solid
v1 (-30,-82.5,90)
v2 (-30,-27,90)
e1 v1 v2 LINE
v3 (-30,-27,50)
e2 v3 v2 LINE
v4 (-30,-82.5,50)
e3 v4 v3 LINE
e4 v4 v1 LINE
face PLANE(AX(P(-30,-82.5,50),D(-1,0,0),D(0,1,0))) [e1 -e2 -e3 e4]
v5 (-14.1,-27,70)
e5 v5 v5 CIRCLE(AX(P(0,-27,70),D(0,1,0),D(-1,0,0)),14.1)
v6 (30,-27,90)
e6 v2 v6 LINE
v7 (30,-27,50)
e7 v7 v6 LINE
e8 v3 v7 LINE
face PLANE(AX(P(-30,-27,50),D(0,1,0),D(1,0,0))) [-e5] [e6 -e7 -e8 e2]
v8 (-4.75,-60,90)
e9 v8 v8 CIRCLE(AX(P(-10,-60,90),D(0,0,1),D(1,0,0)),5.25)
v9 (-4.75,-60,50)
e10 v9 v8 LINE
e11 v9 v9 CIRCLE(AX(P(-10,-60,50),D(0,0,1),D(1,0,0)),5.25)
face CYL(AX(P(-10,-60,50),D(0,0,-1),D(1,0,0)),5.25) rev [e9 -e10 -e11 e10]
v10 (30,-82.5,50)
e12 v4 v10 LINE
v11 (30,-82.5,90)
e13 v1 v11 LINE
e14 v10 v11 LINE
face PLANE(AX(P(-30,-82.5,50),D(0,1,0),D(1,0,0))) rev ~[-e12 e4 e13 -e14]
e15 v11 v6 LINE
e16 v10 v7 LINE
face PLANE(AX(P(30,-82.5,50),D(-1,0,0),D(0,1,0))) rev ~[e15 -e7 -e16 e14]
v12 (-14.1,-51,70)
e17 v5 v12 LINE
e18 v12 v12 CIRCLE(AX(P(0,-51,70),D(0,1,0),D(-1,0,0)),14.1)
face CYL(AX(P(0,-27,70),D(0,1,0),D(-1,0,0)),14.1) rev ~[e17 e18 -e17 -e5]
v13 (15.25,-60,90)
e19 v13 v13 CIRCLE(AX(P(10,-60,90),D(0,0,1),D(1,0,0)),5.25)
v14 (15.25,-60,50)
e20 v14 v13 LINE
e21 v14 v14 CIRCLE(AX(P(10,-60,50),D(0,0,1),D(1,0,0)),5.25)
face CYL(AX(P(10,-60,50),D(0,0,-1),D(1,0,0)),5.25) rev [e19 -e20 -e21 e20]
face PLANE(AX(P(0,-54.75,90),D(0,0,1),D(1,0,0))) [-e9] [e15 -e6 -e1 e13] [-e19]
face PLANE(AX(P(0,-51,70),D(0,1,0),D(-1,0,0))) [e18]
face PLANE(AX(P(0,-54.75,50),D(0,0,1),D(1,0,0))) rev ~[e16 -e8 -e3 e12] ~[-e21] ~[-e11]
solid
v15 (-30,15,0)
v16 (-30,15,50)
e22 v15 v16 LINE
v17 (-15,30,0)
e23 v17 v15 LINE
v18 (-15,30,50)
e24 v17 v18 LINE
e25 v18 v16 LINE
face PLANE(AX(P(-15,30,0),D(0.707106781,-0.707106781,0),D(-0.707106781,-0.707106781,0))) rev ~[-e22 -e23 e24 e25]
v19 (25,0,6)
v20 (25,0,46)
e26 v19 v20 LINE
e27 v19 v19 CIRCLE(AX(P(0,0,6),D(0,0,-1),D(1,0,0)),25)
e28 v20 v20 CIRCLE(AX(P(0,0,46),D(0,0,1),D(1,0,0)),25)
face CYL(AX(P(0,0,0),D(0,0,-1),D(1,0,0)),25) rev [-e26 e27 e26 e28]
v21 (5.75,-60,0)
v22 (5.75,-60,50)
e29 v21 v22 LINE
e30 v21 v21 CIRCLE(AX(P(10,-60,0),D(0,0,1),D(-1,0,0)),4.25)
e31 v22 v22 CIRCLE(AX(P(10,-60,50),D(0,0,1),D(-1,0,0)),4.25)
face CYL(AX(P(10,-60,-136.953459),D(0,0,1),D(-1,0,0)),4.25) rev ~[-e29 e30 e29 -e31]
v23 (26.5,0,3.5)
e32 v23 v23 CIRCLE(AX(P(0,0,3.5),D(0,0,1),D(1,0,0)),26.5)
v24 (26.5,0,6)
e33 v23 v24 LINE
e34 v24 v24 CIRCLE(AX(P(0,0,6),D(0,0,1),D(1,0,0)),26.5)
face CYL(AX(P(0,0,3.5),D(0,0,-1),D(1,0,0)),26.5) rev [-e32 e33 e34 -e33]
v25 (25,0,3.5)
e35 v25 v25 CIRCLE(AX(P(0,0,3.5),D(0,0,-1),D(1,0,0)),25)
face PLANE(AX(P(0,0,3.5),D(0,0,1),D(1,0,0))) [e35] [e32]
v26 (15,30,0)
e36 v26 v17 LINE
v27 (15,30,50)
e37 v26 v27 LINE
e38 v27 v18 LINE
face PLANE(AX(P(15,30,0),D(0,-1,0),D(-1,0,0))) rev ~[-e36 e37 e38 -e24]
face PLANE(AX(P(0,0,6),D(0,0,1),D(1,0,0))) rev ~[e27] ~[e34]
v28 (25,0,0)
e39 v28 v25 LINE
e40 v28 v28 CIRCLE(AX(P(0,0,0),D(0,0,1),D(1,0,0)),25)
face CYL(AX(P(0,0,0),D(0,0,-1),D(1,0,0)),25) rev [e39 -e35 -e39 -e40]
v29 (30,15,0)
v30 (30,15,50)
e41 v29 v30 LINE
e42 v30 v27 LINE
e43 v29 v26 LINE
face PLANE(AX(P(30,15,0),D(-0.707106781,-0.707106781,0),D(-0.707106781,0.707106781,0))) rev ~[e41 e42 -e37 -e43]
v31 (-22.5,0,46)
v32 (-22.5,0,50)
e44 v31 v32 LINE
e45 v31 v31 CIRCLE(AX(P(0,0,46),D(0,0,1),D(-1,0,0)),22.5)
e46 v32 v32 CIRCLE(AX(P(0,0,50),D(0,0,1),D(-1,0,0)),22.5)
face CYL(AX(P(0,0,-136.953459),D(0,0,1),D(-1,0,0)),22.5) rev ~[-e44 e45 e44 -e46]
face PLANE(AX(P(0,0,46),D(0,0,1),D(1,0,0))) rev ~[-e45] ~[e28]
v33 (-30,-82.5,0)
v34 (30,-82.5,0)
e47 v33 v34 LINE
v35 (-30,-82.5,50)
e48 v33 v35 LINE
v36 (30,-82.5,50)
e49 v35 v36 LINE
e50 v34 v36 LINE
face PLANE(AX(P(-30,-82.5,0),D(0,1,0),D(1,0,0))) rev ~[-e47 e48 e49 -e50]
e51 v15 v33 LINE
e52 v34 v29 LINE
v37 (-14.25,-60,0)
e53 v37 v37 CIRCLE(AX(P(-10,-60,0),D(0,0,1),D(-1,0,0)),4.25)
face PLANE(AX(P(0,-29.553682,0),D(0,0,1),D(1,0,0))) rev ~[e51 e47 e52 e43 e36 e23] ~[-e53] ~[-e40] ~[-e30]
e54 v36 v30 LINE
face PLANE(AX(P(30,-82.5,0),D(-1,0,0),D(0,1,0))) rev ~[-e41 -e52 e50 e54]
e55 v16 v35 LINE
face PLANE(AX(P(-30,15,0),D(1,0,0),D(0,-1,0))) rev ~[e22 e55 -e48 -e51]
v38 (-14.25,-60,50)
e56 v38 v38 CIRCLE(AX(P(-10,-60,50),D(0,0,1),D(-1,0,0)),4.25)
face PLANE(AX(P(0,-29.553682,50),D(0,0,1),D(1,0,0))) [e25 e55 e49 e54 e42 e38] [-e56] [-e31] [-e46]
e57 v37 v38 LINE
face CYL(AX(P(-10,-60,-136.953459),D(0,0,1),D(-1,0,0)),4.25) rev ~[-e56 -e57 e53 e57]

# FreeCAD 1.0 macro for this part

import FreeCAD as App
import Part
import Sketcher
from FreeCAD import Vector
Q = App.Units.Quantity


def add_polygon(sketch, points):
    """Adds a closed chain of lines whose ends are joined by coincident constraints."""
    first, n = sketch.GeometryCount, len(points)
    for a, b in zip(points, points[1:] + points[:1]):
        sketch.addGeometry(Part.LineSegment(App.Vector(*a, 0), App.Vector(*b, 0)), False)
    for i in range(n):
        sketch.addConstraint(Sketcher.Constraint("Coincident", first + i, 2, first + (i + 1) % n, 1))

doc = App.newDocument("Part")
body = doc.addObject("PartDesign::Body", "Body")

sketch1 = body.newObject("Sketcher::SketchObject", "Sketch")
sketch1.AttachmentSupport = (doc.getObject("XY_Plane"), [""])
sketch1.MapMode = "FlatFace"
add_polygon(sketch1, [(15, 30), (-15, 30), (-30, 15), (-30, -82), (30, -82), (30, 15)])
sketch1.addConstraint([
    Sketcher.Constraint("Horizontal", 0),
    Sketcher.Constraint("Vertical", 2),
    Sketcher.Constraint("Horizontal", 3),
    Sketcher.Constraint("Vertical", 4),
    Sketcher.Constraint("Symmetric", 1, 2, 4, 2, -2),
    Sketcher.Constraint("Perpendicular", 1, 5),
    Sketcher.Constraint("Equal", 1, 5),
    Sketcher.Constraint("DistanceX", 0, 2, 0, 1, Q("30 mm")),
    Sketcher.Constraint("DistanceX", 3, 1, 3, 2, Q("60 mm")),
    Sketcher.Constraint("DistanceY", 2, 2, 2, 1, Q("97.5 mm")),
    Sketcher.Constraint("DistanceY", -1, 1, 0, 2, Q("30 mm")),
])
pad1 = body.newObject("PartDesign::Pad", "Pad")
pad1.Profile = sketch1
pad1.Length = 50

sketch2 = body.newObject("Sketcher::SketchObject", "Sketch001")
sketch2.AttachmentSupport = (doc.getObject("XY_Plane"), [""])
sketch2.MapMode = "FlatFace"
sketch2.addGeometry([
    Part.Circle(Vector(-10, -60, 0), Vector(0, 0, 1), 4.2),
    Part.Circle(Vector(10, -60, 0), Vector(0, 0, 1), 4.2),
], False)
sketch2.addConstraint([
    Sketcher.Constraint("Equal", 0, 1),
    Sketcher.Constraint("Symmetric", 0, 3, 1, 3, -2),
    Sketcher.Constraint("Diameter", 0, Q("8.5 mm")),
    Sketcher.Constraint("DistanceX", 0, 3, -1, 1, Q("10 mm")),
    Sketcher.Constraint("DistanceY", 0, 3, -1, 1, Q("60 mm")),
])
doc.recompute()
hole = body.newObject("PartDesign::Hole", "Hole")
hole.Profile = sketch2
hole.ThreadType = "None"
hole.Diameter = 8.5
hole.DepthType = "ThroughAll"
hole.Reversed = True

sketch3 = body.newObject("Sketcher::SketchObject", "Sketch002")
sketch3.AttachmentSupport = (doc.getObject("XY_Plane"), [""])
sketch3.MapMode = "FlatFace"
sketch3.addGeometry(Part.Circle(Vector(0, 0, 0), Vector(0, 0, 1), 22), False)
sketch3.addConstraint([
    Sketcher.Constraint("Coincident", 0, 3, -1, 1),
    Sketcher.Constraint("Diameter", 0, Q("45 mm")),
])
doc.recompute()
hole2 = body.newObject("PartDesign::Hole", "Hole001")
hole2.Profile = sketch3
hole2.ThreadType = "None"
hole2.Diameter = 45
hole2.DepthType = "ThroughAll"
hole2.Reversed = True

sketch4 = body.newObject("Sketcher::SketchObject", "Sketch003")
sketch4.AttachmentSupport = (doc.getObject("XY_Plane"), [""])
sketch4.MapMode = "FlatFace"
sketch4.addGeometry(Part.Circle(Vector(0, 0, 0), Vector(0, 0, 1), 25), False)
sketch4.addConstraint([
    Sketcher.Constraint("Coincident", 0, 3, -1, 1),
    Sketcher.Constraint("Diameter", 0, Q("50 mm")),
])
pocket1 = body.newObject("PartDesign::Pocket", "Pocket")
pocket1.Profile = sketch4
pocket1.Length = 46
pocket1.Reversed = True

sketch5 = body.newObject("Sketcher::SketchObject", "Sketch004")
sketch5.AttachmentSupport = (doc.getObject("XY_Plane"), [""])
sketch5.MapMode = "FlatFace"
sketch5.AttachmentOffset = App.Placement(Vector(0, 0, 3.5), App.Rotation())
sketch5.addGeometry(Part.Circle(Vector(0, 0, 0), Vector(0, 0, 1), 26), False)
sketch5.addConstraint([
    Sketcher.Constraint("Coincident", 0, 3, -1, 1),
    Sketcher.Constraint("Diameter", 0, Q("53 mm")),
])
pocket2 = body.newObject("PartDesign::Pocket", "Pocket001")
pocket2.Profile = sketch5
pocket2.Length = 2.5
pocket2.Reversed = True
body2 = doc.addObject("PartDesign::Body", "Body001")

sketch6 = body2.newObject("Sketcher::SketchObject", "Sketch005")
sketch6.AttachmentSupport = (doc.getObject("XY_Plane001"), [""])
sketch6.MapMode = "FlatFace"
sketch6.AttachmentOffset = App.Placement(Vector(0, 0, 50), App.Rotation())
add_polygon(sketch6, [(-30, -27), (-30, -82), (30, -82), (30, -27)])
sketch6.addGeometry(Part.Circle(Vector(-10, -60, 0), Vector(0, 0, 1), 5), False)
sketch6.addGeometry(Part.Circle(Vector(10, -60, 0), Vector(0, 0, 1), 5), False)
sketch6.addConstraint([
    Sketcher.Constraint("Vertical", 0),
    Sketcher.Constraint("Horizontal", 1),
    Sketcher.Constraint("Vertical", 2),
    Sketcher.Constraint("Horizontal", 3),
    Sketcher.Constraint("Equal", 4, 5),
    Sketcher.Constraint("Symmetric", 4, 3, 5, 3, -2),
    Sketcher.Constraint("Diameter", 4, Q("10.5 mm")),
    Sketcher.Constraint("DistanceX", 1, 1, 1, 2, Q("60 mm")),
    Sketcher.Constraint("DistanceY", 0, 2, 0, 1, Q("55.5 mm")),
    Sketcher.Constraint("DistanceX", 4, 3, -1, 1, Q("10 mm")),
    Sketcher.Constraint("DistanceY", 4, 3, -1, 1, Q("60 mm")),
    Sketcher.Constraint("DistanceX", 0, 2, -1, 1, Q("30 mm")),
    Sketcher.Constraint("DistanceY", 2, 2, -1, 1, Q("27 mm")),
])
pad2 = body2.newObject("PartDesign::Pad", "Pad001")
pad2.Profile = sketch6
pad2.Length = 40

sketch7 = body2.newObject("Sketcher::SketchObject", "Sketch006")
sketch7.AttachmentSupport = (doc.getObject("XZ_Plane001"), [""])
sketch7.MapMode = "FlatFace"
sketch7.AttachmentOffset = App.Placement(Vector(0, 0, 27), App.Rotation())
sketch7.addGeometry(Part.Circle(Vector(0, 70, 0), Vector(0, 0, 1), 14), False)
sketch7.addConstraint([
    Sketcher.Constraint("PointOnObject", 0, 3, -2),
    Sketcher.Constraint("Diameter", 0, Q("28.2 mm")),
    Sketcher.Constraint("DistanceY", -1, 1, 0, 3, Q("70 mm")),
])
pocket3 = body2.newObject("PartDesign::Pocket", "Pocket002")
pocket3.Profile = sketch7
pocket3.Length = 24
pocket3.Reversed = True

doc.recompute()
